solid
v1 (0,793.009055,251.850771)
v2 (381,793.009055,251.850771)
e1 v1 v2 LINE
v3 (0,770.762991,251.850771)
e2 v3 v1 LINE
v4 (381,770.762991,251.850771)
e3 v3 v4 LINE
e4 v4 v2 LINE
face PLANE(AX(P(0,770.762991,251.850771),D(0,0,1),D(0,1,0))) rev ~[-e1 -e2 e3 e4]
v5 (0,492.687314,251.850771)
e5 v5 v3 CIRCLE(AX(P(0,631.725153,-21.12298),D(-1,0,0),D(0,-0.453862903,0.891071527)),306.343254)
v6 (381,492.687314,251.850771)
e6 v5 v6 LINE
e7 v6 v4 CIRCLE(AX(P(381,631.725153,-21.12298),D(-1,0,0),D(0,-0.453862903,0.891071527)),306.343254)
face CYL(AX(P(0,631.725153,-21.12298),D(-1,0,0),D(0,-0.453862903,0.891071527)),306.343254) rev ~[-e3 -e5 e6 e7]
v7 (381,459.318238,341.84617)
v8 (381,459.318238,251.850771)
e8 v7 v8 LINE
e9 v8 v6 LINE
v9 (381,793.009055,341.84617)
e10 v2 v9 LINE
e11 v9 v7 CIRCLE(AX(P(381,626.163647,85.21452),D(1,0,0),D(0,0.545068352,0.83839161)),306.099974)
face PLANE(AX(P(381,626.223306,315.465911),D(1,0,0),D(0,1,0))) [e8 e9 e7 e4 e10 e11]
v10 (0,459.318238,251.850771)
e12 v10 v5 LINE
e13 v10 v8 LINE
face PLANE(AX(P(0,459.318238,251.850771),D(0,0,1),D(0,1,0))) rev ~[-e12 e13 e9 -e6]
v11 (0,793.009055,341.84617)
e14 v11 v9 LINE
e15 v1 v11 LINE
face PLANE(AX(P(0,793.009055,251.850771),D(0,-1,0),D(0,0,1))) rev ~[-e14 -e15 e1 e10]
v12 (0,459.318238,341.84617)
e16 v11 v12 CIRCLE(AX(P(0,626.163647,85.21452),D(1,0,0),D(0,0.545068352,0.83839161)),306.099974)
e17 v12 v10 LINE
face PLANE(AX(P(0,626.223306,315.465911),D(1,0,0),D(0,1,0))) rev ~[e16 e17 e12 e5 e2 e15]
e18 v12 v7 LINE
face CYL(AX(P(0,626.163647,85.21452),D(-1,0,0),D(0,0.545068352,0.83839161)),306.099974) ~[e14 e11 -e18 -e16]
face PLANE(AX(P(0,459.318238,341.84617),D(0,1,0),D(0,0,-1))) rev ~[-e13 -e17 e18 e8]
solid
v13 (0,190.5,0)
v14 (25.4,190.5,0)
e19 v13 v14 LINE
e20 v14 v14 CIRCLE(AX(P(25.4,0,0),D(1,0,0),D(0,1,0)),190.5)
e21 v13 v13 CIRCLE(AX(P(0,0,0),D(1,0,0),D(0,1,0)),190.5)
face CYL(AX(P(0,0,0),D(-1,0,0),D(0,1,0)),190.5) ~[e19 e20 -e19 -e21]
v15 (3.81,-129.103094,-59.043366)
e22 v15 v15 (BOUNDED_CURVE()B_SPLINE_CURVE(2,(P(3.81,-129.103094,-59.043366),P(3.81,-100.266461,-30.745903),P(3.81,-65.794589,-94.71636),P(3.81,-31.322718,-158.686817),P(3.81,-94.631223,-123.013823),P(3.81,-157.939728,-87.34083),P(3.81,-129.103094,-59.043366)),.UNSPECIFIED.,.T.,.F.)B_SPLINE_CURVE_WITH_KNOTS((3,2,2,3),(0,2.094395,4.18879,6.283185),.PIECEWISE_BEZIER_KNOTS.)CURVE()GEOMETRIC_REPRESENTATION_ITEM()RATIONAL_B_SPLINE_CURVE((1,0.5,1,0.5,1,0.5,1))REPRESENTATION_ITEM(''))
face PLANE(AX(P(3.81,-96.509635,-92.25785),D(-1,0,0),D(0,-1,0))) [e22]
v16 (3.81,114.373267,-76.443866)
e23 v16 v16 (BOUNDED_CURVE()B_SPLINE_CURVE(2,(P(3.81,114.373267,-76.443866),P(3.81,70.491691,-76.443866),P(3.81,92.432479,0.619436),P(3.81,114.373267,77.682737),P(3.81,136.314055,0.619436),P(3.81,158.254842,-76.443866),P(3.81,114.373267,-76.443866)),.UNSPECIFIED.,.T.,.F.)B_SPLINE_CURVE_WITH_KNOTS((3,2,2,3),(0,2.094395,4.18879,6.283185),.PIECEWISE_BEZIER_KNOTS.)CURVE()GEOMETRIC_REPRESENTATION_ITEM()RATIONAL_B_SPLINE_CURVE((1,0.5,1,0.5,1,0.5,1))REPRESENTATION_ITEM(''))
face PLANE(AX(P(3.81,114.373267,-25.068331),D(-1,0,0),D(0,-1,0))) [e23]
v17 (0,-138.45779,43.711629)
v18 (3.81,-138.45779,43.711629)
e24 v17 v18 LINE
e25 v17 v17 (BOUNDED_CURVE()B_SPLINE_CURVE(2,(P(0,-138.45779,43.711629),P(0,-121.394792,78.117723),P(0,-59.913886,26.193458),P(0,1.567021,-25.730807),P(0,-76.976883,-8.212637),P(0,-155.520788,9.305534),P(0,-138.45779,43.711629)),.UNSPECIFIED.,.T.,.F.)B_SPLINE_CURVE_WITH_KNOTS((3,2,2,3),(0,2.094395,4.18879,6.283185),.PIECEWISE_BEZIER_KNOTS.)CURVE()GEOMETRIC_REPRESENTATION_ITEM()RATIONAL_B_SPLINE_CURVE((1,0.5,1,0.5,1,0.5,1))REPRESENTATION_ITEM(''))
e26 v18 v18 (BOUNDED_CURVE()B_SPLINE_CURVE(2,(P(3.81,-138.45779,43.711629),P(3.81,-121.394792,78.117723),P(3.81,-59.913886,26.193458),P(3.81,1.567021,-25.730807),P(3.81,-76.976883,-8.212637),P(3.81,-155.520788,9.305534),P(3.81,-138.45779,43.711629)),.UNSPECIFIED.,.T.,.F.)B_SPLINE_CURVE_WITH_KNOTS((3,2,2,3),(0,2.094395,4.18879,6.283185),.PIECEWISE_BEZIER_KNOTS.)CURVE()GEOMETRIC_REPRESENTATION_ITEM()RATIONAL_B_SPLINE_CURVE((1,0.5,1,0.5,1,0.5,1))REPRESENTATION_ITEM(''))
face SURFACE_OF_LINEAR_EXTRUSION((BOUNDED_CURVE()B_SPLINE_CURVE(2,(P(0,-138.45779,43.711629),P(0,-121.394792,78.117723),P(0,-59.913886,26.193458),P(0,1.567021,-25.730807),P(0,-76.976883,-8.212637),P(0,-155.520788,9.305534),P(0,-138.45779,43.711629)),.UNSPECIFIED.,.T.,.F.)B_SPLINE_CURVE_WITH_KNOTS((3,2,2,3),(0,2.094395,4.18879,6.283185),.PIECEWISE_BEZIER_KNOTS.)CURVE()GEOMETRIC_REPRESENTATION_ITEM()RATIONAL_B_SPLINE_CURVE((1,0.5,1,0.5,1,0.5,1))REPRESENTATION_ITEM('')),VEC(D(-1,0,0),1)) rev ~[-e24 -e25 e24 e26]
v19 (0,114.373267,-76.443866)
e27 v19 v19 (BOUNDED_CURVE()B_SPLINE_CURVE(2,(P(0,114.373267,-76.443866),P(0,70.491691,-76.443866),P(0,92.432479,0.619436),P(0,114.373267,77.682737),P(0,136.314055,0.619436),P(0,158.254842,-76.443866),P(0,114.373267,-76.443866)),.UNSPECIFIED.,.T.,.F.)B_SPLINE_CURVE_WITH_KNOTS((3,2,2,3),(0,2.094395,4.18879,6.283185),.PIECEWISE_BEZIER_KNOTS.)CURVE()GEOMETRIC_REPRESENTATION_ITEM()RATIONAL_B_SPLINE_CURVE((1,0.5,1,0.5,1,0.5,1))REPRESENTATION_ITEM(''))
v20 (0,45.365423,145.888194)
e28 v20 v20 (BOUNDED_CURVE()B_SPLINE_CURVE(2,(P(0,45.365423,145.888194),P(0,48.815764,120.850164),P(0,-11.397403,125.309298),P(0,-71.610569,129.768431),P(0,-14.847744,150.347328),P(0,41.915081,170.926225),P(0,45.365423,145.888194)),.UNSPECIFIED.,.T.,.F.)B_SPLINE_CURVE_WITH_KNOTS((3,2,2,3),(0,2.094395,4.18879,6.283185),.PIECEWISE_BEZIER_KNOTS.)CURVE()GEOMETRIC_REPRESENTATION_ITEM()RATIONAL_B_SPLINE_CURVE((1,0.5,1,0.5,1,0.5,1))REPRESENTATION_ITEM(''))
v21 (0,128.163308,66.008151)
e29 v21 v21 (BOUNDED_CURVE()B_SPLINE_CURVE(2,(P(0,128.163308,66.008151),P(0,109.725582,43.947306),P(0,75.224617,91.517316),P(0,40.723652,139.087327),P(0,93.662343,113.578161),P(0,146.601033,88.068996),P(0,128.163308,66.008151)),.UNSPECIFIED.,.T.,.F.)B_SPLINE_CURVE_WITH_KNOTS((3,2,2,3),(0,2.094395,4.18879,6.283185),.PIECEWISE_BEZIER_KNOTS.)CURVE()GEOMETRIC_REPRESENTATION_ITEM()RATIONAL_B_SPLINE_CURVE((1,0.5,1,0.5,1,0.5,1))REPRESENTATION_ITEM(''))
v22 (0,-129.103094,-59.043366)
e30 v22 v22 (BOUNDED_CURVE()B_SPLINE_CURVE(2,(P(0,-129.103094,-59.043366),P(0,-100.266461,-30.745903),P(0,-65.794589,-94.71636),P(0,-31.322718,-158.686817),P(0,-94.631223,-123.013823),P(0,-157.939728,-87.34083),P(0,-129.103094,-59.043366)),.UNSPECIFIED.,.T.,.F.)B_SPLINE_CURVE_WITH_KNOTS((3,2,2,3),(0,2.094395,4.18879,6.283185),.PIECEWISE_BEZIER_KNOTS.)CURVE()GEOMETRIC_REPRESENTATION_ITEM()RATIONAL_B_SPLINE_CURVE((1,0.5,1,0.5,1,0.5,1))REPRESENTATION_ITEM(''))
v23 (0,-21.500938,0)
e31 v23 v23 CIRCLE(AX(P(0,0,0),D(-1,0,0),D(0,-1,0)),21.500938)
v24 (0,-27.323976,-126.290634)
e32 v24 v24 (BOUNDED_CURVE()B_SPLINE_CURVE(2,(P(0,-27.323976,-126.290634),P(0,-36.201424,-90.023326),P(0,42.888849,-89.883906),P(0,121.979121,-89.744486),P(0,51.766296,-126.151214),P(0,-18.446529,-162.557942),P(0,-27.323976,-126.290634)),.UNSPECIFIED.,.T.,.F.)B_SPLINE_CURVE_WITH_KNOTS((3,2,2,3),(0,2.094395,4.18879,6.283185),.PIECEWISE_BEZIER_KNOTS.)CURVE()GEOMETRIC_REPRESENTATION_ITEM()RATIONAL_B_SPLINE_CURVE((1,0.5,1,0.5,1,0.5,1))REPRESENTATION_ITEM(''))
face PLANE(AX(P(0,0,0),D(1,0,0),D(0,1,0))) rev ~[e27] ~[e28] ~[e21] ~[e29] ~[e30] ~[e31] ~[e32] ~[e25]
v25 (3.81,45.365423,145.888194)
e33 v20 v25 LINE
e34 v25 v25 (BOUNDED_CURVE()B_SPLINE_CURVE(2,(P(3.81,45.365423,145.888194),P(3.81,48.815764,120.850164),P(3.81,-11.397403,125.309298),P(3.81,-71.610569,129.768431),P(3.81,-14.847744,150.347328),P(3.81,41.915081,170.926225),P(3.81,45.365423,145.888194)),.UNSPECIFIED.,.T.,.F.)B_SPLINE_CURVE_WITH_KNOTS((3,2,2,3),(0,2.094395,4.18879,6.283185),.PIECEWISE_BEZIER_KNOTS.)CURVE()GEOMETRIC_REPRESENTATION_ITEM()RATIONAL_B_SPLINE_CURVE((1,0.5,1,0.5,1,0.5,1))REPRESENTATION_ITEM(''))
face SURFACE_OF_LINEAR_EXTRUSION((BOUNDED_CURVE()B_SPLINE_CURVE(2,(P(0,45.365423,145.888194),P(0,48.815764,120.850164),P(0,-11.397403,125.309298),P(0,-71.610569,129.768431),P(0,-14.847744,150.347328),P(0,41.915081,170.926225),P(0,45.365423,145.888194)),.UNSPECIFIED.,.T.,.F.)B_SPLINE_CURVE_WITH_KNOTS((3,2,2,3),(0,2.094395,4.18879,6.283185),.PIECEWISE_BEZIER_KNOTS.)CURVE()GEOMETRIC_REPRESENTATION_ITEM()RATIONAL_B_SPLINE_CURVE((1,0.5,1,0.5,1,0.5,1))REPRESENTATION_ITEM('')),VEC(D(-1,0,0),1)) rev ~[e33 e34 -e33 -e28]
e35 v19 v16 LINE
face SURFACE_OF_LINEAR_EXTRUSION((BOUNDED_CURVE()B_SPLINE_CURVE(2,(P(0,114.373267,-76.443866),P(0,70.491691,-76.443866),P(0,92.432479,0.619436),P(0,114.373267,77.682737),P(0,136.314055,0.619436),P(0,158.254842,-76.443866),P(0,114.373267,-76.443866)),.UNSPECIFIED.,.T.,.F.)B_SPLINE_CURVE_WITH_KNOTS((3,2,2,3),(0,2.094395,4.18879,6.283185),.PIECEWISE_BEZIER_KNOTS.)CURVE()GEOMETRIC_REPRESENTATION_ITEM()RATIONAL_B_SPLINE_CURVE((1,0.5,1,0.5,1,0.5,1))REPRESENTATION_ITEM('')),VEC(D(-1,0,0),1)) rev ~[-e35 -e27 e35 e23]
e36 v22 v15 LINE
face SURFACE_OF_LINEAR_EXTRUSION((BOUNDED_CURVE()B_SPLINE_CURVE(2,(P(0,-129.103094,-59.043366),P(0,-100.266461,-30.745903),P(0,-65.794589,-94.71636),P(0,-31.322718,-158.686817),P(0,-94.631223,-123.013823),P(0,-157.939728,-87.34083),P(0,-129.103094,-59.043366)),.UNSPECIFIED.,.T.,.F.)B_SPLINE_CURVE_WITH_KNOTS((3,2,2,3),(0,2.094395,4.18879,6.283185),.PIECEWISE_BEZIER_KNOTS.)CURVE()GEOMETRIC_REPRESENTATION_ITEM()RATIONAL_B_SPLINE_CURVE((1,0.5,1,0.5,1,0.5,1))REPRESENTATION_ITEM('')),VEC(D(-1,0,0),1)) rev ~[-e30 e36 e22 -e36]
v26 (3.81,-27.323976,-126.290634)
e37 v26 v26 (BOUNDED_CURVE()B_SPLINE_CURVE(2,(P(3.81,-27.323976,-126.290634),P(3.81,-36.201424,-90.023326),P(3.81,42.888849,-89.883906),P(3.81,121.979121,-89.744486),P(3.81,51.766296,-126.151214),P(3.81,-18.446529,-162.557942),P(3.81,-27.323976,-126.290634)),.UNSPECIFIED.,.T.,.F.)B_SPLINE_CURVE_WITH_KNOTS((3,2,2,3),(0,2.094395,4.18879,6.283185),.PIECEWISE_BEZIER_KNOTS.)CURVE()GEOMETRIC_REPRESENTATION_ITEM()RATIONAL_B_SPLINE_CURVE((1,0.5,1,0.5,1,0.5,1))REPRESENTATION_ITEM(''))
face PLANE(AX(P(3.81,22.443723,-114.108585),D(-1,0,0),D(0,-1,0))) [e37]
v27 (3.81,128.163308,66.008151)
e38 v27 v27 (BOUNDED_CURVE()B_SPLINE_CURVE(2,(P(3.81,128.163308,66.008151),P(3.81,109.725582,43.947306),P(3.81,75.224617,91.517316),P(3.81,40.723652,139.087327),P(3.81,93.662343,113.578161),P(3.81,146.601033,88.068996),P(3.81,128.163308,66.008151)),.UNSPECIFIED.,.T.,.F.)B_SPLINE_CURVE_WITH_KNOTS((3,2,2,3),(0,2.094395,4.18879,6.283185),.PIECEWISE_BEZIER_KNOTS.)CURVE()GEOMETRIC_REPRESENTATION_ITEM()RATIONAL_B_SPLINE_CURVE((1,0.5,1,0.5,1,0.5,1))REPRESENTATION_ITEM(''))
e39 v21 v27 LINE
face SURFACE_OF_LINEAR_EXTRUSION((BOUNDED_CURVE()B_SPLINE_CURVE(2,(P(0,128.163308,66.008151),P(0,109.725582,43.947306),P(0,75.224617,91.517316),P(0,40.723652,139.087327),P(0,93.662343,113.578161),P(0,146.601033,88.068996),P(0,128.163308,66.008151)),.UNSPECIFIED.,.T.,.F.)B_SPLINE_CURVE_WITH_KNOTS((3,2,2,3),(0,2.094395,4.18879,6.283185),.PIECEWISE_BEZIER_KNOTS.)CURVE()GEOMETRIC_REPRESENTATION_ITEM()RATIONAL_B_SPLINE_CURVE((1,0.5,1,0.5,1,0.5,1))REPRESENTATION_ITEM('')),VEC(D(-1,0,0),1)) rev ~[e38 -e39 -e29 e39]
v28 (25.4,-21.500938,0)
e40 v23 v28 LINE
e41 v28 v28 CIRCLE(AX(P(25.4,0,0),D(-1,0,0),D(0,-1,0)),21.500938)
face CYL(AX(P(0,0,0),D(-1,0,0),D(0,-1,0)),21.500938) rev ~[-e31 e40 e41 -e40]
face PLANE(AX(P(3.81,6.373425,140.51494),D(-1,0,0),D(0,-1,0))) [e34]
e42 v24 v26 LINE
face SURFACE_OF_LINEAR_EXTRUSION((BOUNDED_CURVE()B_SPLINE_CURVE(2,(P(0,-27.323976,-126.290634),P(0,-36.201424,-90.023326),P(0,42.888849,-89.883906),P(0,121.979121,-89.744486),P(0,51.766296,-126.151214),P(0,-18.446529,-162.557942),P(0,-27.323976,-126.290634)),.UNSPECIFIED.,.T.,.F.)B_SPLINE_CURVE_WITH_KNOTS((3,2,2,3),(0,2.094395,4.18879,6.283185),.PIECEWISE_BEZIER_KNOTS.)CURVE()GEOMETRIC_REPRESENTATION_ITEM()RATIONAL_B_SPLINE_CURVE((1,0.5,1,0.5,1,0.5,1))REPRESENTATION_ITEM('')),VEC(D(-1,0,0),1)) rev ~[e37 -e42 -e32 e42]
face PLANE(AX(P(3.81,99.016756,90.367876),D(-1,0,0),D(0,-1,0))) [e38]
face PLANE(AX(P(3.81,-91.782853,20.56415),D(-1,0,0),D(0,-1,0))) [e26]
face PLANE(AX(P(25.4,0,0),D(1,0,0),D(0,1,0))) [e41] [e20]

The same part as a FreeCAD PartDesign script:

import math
import FreeCAD as App
import Part
import Sketcher

V = App.Vector
Q = App.Units.Quantity

doc = App.newDocument("Part")
body = doc.addObject("PartDesign::Body", "Body")

# Sketch on YZ plane
sketch1 = doc.addObject("Sketcher::SketchObject", "Sketch")
body.addObject(sketch1)
sketch1.AttachmentSupport = (doc.YZ_Plane, [""])
sketch1.MapMode = "FlatFace"
sketch1.addGeometry(Part.Circle(V(0, 0, 0), V(0, 0, 1), 190.5), False)
sketch1.addConstraint(Sketcher.Constraint("Coincident", 0, 3, -1, 1))
sketch1.addConstraint(Sketcher.Constraint("Diameter", 0, Q("15 in")))
pad1 = doc.addObject("PartDesign::Pad", "Pad")
body.addObject(pad1)
pad1.Profile = sketch1
pad1.Length = Q("1 in")

# Sketch on YZ plane
sketch2 = doc.addObject("Sketcher::SketchObject", "Sketch001")
body.addObject(sketch2)
sketch2.AttachmentSupport = (doc.YZ_Plane, [""])
sketch2.MapMode = "FlatFace"
sketch2.addGeometry(Part.Circle(V(0, 0, 0), V(0, 0, 1), 21.500938), False)
sketch2.addConstraint(Sketcher.Constraint("Coincident", 0, 3, -1, 1))
sketch2.addConstraint(Sketcher.Constraint("Diameter", 0, Q("43.001876 mm")))
pocket1 = doc.addObject("PartDesign::Pocket", "Pocket")
body.addObject(pocket1)
pocket1.Profile = sketch2
pocket1.Length = Q("2.86 in")
pocket1.Reversed = True

# Sketch on YZ plane
sketch3 = doc.addObject("Sketcher::SketchObject", "Sketch002")
body.addObject(sketch3)
sketch3.AttachmentSupport = (doc.YZ_Plane, [""])
sketch3.MapMode = "FlatFace"
sketch3.addGeometry(Part.BSplineCurve([V(45.365423, 145.888194, 0), V(48.815764, 120.850164, 0), V(-11.397403, 125.309298, 0), V(-71.610569, 129.768431, 0), V(-14.847744, 150.347328, 0), V(41.915081, 170.926225, 0), V(45.365423, 145.888194, 0)], [3, 2, 2, 3], [0, 2.094395, 4.18879, 6.283185], False, 2, [1, 0.5, 1, 0.5, 1, 0.5, 1], False), False)
sketch3.addGeometry(Part.BSplineCurve([V(128.163308, 66.008151, 0), V(109.725582, 43.947306, 0), V(75.224617, 91.517316, 0), V(40.723652, 139.087327, 0), V(93.662343, 113.578161, 0), V(146.601033, 88.068996, 0), V(128.163308, 66.008151, 0)], [3, 2, 2, 3], [0, 2.094395, 4.18879, 6.283185], False, 2, [1, 0.5, 1, 0.5, 1, 0.5, 1], False), False)
sketch3.addGeometry(Part.BSplineCurve([V(114.373267, -76.443866, 0), V(70.491691, -76.443866, 0), V(92.432479, 0.619436, 0), V(114.373267, 77.682737, 0), V(136.314055, 0.619436, 0), V(158.254842, -76.443866, 0), V(114.373267, -76.443866, 0)], [3, 2, 2, 3], [0, 2.094395, 4.18879, 6.283185], False, 2, [1, 0.5, 1, 0.5, 1, 0.5, 1], False), False)
sketch3.addGeometry(Part.BSplineCurve([V(-27.323976, -126.290634, 0), V(-36.201424, -90.023326, 0), V(42.888849, -89.883906, 0), V(121.979121, -89.744486, 0), V(51.766296, -126.151214, 0), V(-18.446529, -162.557942, 0), V(-27.323976, -126.290634, 0)], [3, 2, 2, 3], [0, 2.094395, 4.18879, 6.283185], False, 2, [1, 0.5, 1, 0.5, 1, 0.5, 1], False), False)
sketch3.addGeometry(Part.BSplineCurve([V(-129.103094, -59.043366, 0), V(-100.266461, -30.745903, 0), V(-65.794589, -94.71636, 0), V(-31.322718, -158.686817, 0), V(-94.631223, -123.013823, 0), V(-157.939728, -87.34083, 0), V(-129.103094, -59.043366, 0)], [3, 2, 2, 3], [0, 2.094395, 4.18879, 6.283185], False, 2, [1, 0.5, 1, 0.5, 1, 0.5, 1], False), False)
sketch3.addGeometry(Part.BSplineCurve([V(-138.45779, 43.711629, 0), V(-121.394792, 78.117723, 0), V(-59.913886, 26.193458, 0), V(1.567021, -25.730807, 0), V(-76.976883, -8.212637, 0), V(-155.520788, 9.305534, 0), V(-138.45779, 43.711629, 0)], [3, 2, 2, 3], [0, 2.094395, 4.18879, 6.283185], False, 2, [1, 0.5, 1, 0.5, 1, 0.5, 1], False), False)
sketch3.addConstraint(Sketcher.Constraint("Block", 0))
sketch3.addConstraint(Sketcher.Constraint("Block", 1))
sketch3.addConstraint(Sketcher.Constraint("Block", 2))
sketch3.addConstraint(Sketcher.Constraint("Block", 3))
sketch3.addConstraint(Sketcher.Constraint("Block", 4))
sketch3.addConstraint(Sketcher.Constraint("Block", 5))
pocket2 = doc.addObject("PartDesign::Pocket", "Pocket001")
body.addObject(pocket2)
pocket2.Profile = sketch3
pocket2.Length = Q("0.15 in")
pocket2.Reversed = True
body2 = doc.addObject("PartDesign::Body", "Body001")

# Sketch on YZ plane
sketch4 = doc.addObject("Sketcher::SketchObject", "Sketch003")
body2.addObject(sketch4)
sketch4.AttachmentSupport = (doc.getObject("YZ_Plane001"), [""])
sketch4.MapMode = "FlatFace"
sketch4.addGeometry(Part.ArcOfCircle(Part.Circle(V(626.163647, 85.21452, 0), V(0, 0, 1), 306.099974), math.radians(56.970665), math.radians(123.029335)), False)
sketch4.addGeometry(Part.LineSegment(V(459.318238, 341.84617, 0), V(459.318238, 251.850771, 0)), False)
sketch4.addGeometry(Part.LineSegment(V(459.318238, 251.850771, 0), V(492.687314, 251.850771, 0)), False)
sketch4.addGeometry(Part.ArcOfCircle(Part.Circle(V(631.725153, -21.12298, 0), V(0, 0, 1), 306.343254), math.radians(63.008205), math.radians(116.991795)), False)
sketch4.addGeometry(Part.LineSegment(V(770.762991, 251.850771, 0), V(793.009055, 251.850771, 0)), False)
sketch4.addGeometry(Part.LineSegment(V(793.009055, 251.850771, 0), V(793.009055, 341.84617, 0)), False)
sketch4.addConstraint(Sketcher.Constraint("Coincident", 0, 2, 1, 1))
sketch4.addConstraint(Sketcher.Constraint("Coincident", 1, 2, 2, 1))
sketch4.addConstraint(Sketcher.Constraint("Coincident", 2, 2, 3, 2))
sketch4.addConstraint(Sketcher.Constraint("Coincident", 3, 1, 4, 1))
sketch4.addConstraint(Sketcher.Constraint("Coincident", 4, 2, 5, 1))
sketch4.addConstraint(Sketcher.Constraint("Coincident", 5, 2, 0, 1))
sketch4.addConstraint(Sketcher.Constraint("Vertical", 1))
sketch4.addConstraint(Sketcher.Constraint("Horizontal", 2))
sketch4.addConstraint(Sketcher.Constraint("Horizontal", 4))
sketch4.addConstraint(Sketcher.Constraint("Vertical", 5))
sketch4.addConstraint(Sketcher.Constraint("Horizontal", 2, 2, 3, 1))
sketch4.addConstraint(Sketcher.Constraint("Horizontal", 0, 2, 5, 2))
sketch4.addConstraint(Sketcher.Constraint("DistanceY", 1, 2, 1, 1, Q("89.995399 mm")))
sketch4.addConstraint(Sketcher.Constraint("Radius", 0, Q("306.099974 mm")))
sketch4.addConstraint(Sketcher.Constraint("Radius", 3, Q("306.343254 mm")))
sketch4.addConstraint(Sketcher.Constraint("DistanceY", 3, 3, 0, 3, Q("106.3375 mm")))
sketch4.addConstraint(Sketcher.Constraint("DistanceX", 2, 1, 2, 2, Q("33.369076 mm")))
sketch4.addConstraint(Sketcher.Constraint("DistanceX", 4, 1, 4, 2, Q("22.246064 mm")))
sketch4.addConstraint(Sketcher.Constraint("DistanceY", -1, 1, 0, 3, Q("85.21452 mm")))
sketch4.addConstraint(Sketcher.Constraint("DistanceX", -1, 1, 1, 2, Q("459.318238 mm")))
pad2 = doc.addObject("PartDesign::Pad", "Pad001")
body2.addObject(pad2)
pad2.Profile = sketch4
pad2.Length = Q("15 in")

doc.recompute()
